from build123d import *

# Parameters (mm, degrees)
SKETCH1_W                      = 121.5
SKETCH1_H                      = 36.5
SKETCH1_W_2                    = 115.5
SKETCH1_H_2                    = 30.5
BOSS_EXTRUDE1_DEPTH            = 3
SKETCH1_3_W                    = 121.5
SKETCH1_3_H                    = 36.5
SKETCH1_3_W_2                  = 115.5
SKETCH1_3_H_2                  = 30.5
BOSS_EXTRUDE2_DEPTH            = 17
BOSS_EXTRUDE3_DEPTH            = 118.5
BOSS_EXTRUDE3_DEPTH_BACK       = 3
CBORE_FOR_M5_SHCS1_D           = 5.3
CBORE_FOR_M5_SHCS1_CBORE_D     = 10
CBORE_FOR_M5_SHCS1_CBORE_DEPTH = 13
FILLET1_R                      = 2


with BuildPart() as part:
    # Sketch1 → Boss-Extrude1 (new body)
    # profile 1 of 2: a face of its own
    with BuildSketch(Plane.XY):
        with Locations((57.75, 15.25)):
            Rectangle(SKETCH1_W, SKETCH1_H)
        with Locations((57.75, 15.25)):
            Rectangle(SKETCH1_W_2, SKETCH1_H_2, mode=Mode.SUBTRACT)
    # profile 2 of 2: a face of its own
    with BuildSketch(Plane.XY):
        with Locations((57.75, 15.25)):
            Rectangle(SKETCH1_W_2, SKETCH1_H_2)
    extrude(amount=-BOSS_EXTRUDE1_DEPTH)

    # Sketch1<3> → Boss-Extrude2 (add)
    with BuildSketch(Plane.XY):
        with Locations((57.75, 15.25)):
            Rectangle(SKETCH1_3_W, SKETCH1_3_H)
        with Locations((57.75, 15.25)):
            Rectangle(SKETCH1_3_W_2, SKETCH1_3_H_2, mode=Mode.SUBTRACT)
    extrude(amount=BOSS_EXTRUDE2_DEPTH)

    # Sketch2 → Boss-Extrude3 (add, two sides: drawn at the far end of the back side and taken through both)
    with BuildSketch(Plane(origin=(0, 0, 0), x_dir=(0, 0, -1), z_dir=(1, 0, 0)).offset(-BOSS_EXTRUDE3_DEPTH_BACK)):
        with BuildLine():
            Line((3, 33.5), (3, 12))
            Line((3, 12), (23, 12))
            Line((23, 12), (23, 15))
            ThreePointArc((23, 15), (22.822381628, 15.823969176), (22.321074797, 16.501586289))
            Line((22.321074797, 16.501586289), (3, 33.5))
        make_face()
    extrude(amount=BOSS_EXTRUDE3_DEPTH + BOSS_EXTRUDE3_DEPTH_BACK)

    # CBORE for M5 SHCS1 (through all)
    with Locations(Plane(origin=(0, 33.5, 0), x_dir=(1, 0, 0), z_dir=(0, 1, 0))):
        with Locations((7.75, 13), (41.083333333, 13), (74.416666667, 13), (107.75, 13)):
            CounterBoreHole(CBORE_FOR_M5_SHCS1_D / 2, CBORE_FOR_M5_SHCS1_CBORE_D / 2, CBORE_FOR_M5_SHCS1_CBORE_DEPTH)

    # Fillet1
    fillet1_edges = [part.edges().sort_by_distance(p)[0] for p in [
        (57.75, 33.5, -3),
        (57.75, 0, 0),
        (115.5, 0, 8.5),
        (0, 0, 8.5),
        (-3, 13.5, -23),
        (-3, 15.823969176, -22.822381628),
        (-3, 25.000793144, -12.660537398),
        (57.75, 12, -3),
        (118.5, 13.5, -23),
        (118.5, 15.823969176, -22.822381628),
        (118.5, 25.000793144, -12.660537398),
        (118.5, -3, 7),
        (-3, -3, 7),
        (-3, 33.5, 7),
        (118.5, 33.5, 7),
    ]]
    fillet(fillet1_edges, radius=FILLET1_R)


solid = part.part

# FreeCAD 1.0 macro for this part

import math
import FreeCAD as App
import Part
import Sketcher
from FreeCAD import Vector


def edges_at(feature, points):
    """Names of the edges that pass closest to the given points."""
    edges = feature.Shape.Edges
    near = lambda p: min(range(len(edges)), key=lambda i: edges[i].distToShape(Part.Vertex(*p))[0])
    return sorted({f"Edge{near(p) + 1}" for p in points})

doc = App.newDocument("Part")
params = doc.addObject("Spreadsheet::Sheet", "Params")
for row, (alias, value) in enumerate([
    ("sketch1_width", "121.5 mm"),
    ("sketch1_height", "36.5 mm"),
    ("pad1_length", "3 mm"),
    ("sketch2_width", "121.5 mm"),
    ("sketch2_width2", "115.5 mm"),
    ("sketch2_height", "36.5 mm"),
    ("sketch2_height2", "30.5 mm"),
    ("pad2_length", "17 mm"),
    ("sketch3_radius", "2 mm"),
    ("sketch3_width", "3 mm"),
    ("sketch3_height", "20 mm"),
    ("sketch3_width2", "21.5 mm"),
    ("pad3_length", "118.5 mm"),
    ("pad3_length2", "3 mm"),
    ("sketch4_diameter", "5.3 mm"),
    ("hole_diameter", "5.3 mm"),
    ("hole_cbore_diameter", "10 mm"),
    ("hole_cbore_depth", "13 mm"),
    ("fillet_radius", "2 mm"),
], start=1):
    params.set(f"A{row}", alias)
    params.set(f"B{row}", "=" + value)
    params.setAlias(f"B{row}", alias)

body = doc.addObject("PartDesign::Body", "Body")

sketch1 = body.newObject("Sketcher::SketchObject", "Sketch")
sketch1.AttachmentSupport = (doc.getObject("XY_Plane"), [""])
sketch1.MapMode = "FlatFace"
sketch1.addGeometry(Part.LineSegment(Vector(-3, 34, 0), Vector(-3, -3, 0)), False)
sketch1.addGeometry(Part.LineSegment(Vector(-3, -3, 0), Vector(118, -3, 0)), False)
sketch1.addGeometry(Part.LineSegment(Vector(118, -3, 0), Vector(118, 34, 0)), False)
sketch1.addGeometry(Part.LineSegment(Vector(118, 34, 0), Vector(-3, 34, 0)), False)
sketch1.addConstraint(Sketcher.Constraint("Coincident", 0, 2, 1, 1))
sketch1.addConstraint(Sketcher.Constraint("Coincident", 1, 2, 2, 1))
sketch1.addConstraint(Sketcher.Constraint("Coincident", 2, 2, 3, 1))
sketch1.addConstraint(Sketcher.Constraint("Coincident", 3, 2, 0, 1))
sketch1.addConstraint(Sketcher.Constraint("Vertical", 0))
sketch1.addConstraint(Sketcher.Constraint("Horizontal", 1))
sketch1.addConstraint(Sketcher.Constraint("Vertical", 2))
sketch1.addConstraint(Sketcher.Constraint("Horizontal", 3))
sketch1.addConstraint(Sketcher.Constraint("DistanceX", 1, 1, 1, 2, 121.5))
sketch1.addConstraint(Sketcher.Constraint("DistanceY", 0, 2, 0, 1, 36.5))
sketch1.addConstraint(Sketcher.Constraint("DistanceX", 0, 2, -1, 1, 3.0))
sketch1.addConstraint(Sketcher.Constraint("DistanceY", 0, 2, -1, 1, 3.0))
sketch1.setExpression("Constraints[8]", "Params.sketch1_width")
sketch1.setExpression("Constraints[9]", "Params.sketch1_height")
pad1 = body.newObject("PartDesign::Pad", "Pad")
pad1.Profile = sketch1
pad1.setExpression("Length", "Params.pad1_length")
pad1.Reversed = True

sketch2 = body.newObject("Sketcher::SketchObject", "Sketch001")
sketch2.AttachmentSupport = (doc.getObject("XY_Plane"), [""])
sketch2.MapMode = "FlatFace"
sketch2.addGeometry(Part.LineSegment(Vector(-3, 34, 0), Vector(-3, -3, 0)), False)
sketch2.addGeometry(Part.LineSegment(Vector(-3, -3, 0), Vector(118, -3, 0)), False)
sketch2.addGeometry(Part.LineSegment(Vector(118, -3, 0), Vector(118, 34, 0)), False)
sketch2.addGeometry(Part.LineSegment(Vector(118, 34, 0), Vector(-3, 34, 0)), False)
sketch2.addGeometry(Part.LineSegment(Vector(116, 0, 0), Vector(0, 0, 0)), False)
sketch2.addGeometry(Part.LineSegment(Vector(0, 0, 0), Vector(0, 30, 0)), False)
sketch2.addGeometry(Part.LineSegment(Vector(0, 30, 0), Vector(116, 30, 0)), False)
sketch2.addGeometry(Part.LineSegment(Vector(116, 30, 0), Vector(116, 0, 0)), False)
sketch2.addConstraint(Sketcher.Constraint("Coincident", 0, 2, 1, 1))
sketch2.addConstraint(Sketcher.Constraint("Coincident", 1, 2, 2, 1))
sketch2.addConstraint(Sketcher.Constraint("Coincident", 2, 2, 3, 1))
sketch2.addConstraint(Sketcher.Constraint("Coincident", 3, 2, 0, 1))
sketch2.addConstraint(Sketcher.Constraint("Coincident", 4, 2, 5, 1))
sketch2.addConstraint(Sketcher.Constraint("Coincident", 5, 2, 6, 1))
sketch2.addConstraint(Sketcher.Constraint("Coincident", 6, 2, 7, 1))
sketch2.addConstraint(Sketcher.Constraint("Coincident", 7, 2, 4, 1))
sketch2.addConstraint(Sketcher.Constraint("Vertical", 0))
sketch2.addConstraint(Sketcher.Constraint("Horizontal", 1))
sketch2.addConstraint(Sketcher.Constraint("Vertical", 2))
sketch2.addConstraint(Sketcher.Constraint("Horizontal", 3))
sketch2.addConstraint(Sketcher.Constraint("Horizontal", 4))
sketch2.addConstraint(Sketcher.Constraint("Vertical", 5))
sketch2.addConstraint(Sketcher.Constraint("Horizontal", 6))
sketch2.addConstraint(Sketcher.Constraint("Vertical", 7))
sketch2.addConstraint(Sketcher.Constraint("Coincident", 4, 2, -1, 1))
sketch2.addConstraint(Sketcher.Constraint("DistanceX", 1, 1, 1, 2, 121.5))
sketch2.addConstraint(Sketcher.Constraint("DistanceX", 4, 2, 4, 1, 115.5))
sketch2.addConstraint(Sketcher.Constraint("DistanceY", 0, 2, 0, 1, 36.5))
sketch2.addConstraint(Sketcher.Constraint("DistanceY", 5, 1, 5, 2, 30.5))
sketch2.addConstraint(Sketcher.Constraint("DistanceX", 0, 2, -1, 1, 3.0))
sketch2.addConstraint(Sketcher.Constraint("DistanceY", 0, 2, -1, 1, 3.0))
sketch2.setExpression("Constraints[17]", "Params.sketch2_width")
sketch2.setExpression("Constraints[18]", "Params.sketch2_width2")
sketch2.setExpression("Constraints[19]", "Params.sketch2_height")
sketch2.setExpression("Constraints[20]", "Params.sketch2_height2")
pad2 = body.newObject("PartDesign::Pad", "Pad001")
pad2.Profile = sketch2
pad2.setExpression("Length", "Params.pad2_length")

sketch3 = body.newObject("Sketcher::SketchObject", "Sketch002")
sketch3.AttachmentSupport = (doc.getObject("YZ_Plane"), [""])
sketch3.MapMode = "FlatFace"
sketch3.addGeometry(Part.LineSegment(Vector(33.5, -3, 0), Vector(12, -3, 0)), False)
sketch3.addGeometry(Part.LineSegment(Vector(12, -3, 0), Vector(12, -23, 0)), False)
sketch3.addGeometry(Part.LineSegment(Vector(12, -23, 0), Vector(15, -23, 0)), False)
sketch3.addGeometry(Part.ArcOfCircle(Part.Circle(Vector(15, -21, 0), Vector(0, 0, 1), 2), math.radians(-90), math.radians(-41)), False)
sketch3.addGeometry(Part.LineSegment(Vector(16.5, -22.3, 0), Vector(33.5, -3, 0)), False)
sketch3.addConstraint(Sketcher.Constraint("Coincident", 0, 2, 1, 1))
sketch3.addConstraint(Sketcher.Constraint("Coincident", 1, 2, 2, 1))
sketch3.addConstraint(Sketcher.Constraint("Tangent", 2, 2, 3, 1))
sketch3.addConstraint(Sketcher.Constraint("Tangent", 3, 2, 4, 1))
sketch3.addConstraint(Sketcher.Constraint("Coincident", 4, 2, 0, 1))
sketch3.addConstraint(Sketcher.Constraint("Horizontal", 0))
sketch3.addConstraint(Sketcher.Constraint("Vertical", 1))
sketch3.addConstraint(Sketcher.Constraint("Horizontal", 2))
sketch3.addConstraint(Sketcher.Constraint("Radius", 3, 2.0))
sketch3.addConstraint(Sketcher.Constraint("DistanceX", 2, 1, 2, 2, 3.0))
sketch3.addConstraint(Sketcher.Constraint("DistanceY", 1, 2, 1, 1, 20.0))
sketch3.addConstraint(Sketcher.Constraint("DistanceX", 0, 2, 0, 1, 21.5))
sketch3.addConstraint(Sketcher.Constraint("DistanceX", -1, 1, 3, 3, 15.0))
sketch3.addConstraint(Sketcher.Constraint("DistanceY", 3, 3, -1, 1, 21.0))
sketch3.setExpression("Constraints[8]", "Params.sketch3_radius")
sketch3.setExpression("Constraints[9]", "Params.sketch3_width")
sketch3.setExpression("Constraints[10]", "Params.sketch3_height")
sketch3.setExpression("Constraints[11]", "Params.sketch3_width2")
pad3 = body.newObject("PartDesign::Pad", "Pad002")
pad3.Profile = sketch3
pad3.Type = "TwoLengths"
pad3.setExpression("Length", "Params.pad3_length")
pad3.setExpression("Length2", "Params.pad3_length2")

sketch4 = body.newObject("Sketcher::SketchObject", "Sketch003")
sketch4.AttachmentSupport = (doc.getObject("XZ_Plane"), [""])
sketch4.MapMode = "FlatFace"
sketch4.AttachmentOffset = App.Placement(Vector(0, 0, -33.5), App.Rotation())
sketch4.addGeometry(Part.Circle(Vector(7.8, -13, 0), Vector(0, 0, 1), 2.6), False)
sketch4.addGeometry(Part.Circle(Vector(41.1, -13, 0), Vector(0, 0, 1), 2.6), False)
sketch4.addGeometry(Part.Circle(Vector(74.4, -13, 0), Vector(0, 0, 1), 2.6), False)
sketch4.addGeometry(Part.Circle(Vector(107.8, -13, 0), Vector(0, 0, 1), 2.6), False)
sketch4.addConstraint(Sketcher.Constraint("Equal", 0, 1))
sketch4.addConstraint(Sketcher.Constraint("Equal", 1, 2))
sketch4.addConstraint(Sketcher.Constraint("Equal", 2, 3))
sketch4.addConstraint(Sketcher.Constraint("Horizontal", 0, 3, 1, 3))
sketch4.addConstraint(Sketcher.Constraint("Horizontal", 1, 3, 2, 3))
sketch4.addConstraint(Sketcher.Constraint("Horizontal", 2, 3, 3, 3))
sketch4.addConstraint(Sketcher.Constraint("Diameter", 0, 5.3))
sketch4.addConstraint(Sketcher.Constraint("DistanceY", 0, 3, -1, 1, 13.0))
sketch4.addConstraint(Sketcher.Constraint("DistanceX", 0, 3, 3, 3, 100.0))
sketch4.addConstraint(Sketcher.Constraint("DistanceX", -1, 1, 0, 3, 7.75))
sketch4.addConstraint(Sketcher.Constraint("DistanceX", -1, 1, 1, 3, 41.083333))
sketch4.addConstraint(Sketcher.Constraint("DistanceX", -1, 1, 2, 3, 74.416667))
sketch4.setExpression("Constraints[6]", "Params.sketch4_diameter")
doc.recompute()
hole = body.newObject("PartDesign::Hole", "Hole")
hole.Profile = sketch4
hole.ThreadType = "None"
hole.setExpression("Diameter", "Params.hole_diameter")
hole.DepthType = "ThroughAll"
hole.HoleCutType = "Counterbore"
hole.setExpression("HoleCutDiameter", "Params.hole_cbore_diameter")
hole.setExpression("HoleCutDepth", "Params.hole_cbore_depth")
hole.Reversed = True
doc.recompute()

fillet = body.newObject("PartDesign::Fillet", "Fillet")
fillet.Base = (hole, edges_at(hole, [
    (57.75, 33.5, -3),
    (57.75, 0, 0),
    (115.5, 0, 8.5),
    (0, 0, 8.5),
    (-3, 13.5, -23),
    (-3, 15.824, -22.822),
    (-3, 25.001, -12.661),
    (57.75, 12, -3),
    (118.5, 13.5, -23),
    (118.5, 15.824, -22.822),
    (118.5, 25.001, -12.661),
    (118.5, -3, 7),
    (-3, -3, 7),
    (-3, 33.5, 7),
    (118.5, 33.5, 7),
]))
fillet.setExpression("Radius", "Params.fillet_radius")

doc.recompute()
